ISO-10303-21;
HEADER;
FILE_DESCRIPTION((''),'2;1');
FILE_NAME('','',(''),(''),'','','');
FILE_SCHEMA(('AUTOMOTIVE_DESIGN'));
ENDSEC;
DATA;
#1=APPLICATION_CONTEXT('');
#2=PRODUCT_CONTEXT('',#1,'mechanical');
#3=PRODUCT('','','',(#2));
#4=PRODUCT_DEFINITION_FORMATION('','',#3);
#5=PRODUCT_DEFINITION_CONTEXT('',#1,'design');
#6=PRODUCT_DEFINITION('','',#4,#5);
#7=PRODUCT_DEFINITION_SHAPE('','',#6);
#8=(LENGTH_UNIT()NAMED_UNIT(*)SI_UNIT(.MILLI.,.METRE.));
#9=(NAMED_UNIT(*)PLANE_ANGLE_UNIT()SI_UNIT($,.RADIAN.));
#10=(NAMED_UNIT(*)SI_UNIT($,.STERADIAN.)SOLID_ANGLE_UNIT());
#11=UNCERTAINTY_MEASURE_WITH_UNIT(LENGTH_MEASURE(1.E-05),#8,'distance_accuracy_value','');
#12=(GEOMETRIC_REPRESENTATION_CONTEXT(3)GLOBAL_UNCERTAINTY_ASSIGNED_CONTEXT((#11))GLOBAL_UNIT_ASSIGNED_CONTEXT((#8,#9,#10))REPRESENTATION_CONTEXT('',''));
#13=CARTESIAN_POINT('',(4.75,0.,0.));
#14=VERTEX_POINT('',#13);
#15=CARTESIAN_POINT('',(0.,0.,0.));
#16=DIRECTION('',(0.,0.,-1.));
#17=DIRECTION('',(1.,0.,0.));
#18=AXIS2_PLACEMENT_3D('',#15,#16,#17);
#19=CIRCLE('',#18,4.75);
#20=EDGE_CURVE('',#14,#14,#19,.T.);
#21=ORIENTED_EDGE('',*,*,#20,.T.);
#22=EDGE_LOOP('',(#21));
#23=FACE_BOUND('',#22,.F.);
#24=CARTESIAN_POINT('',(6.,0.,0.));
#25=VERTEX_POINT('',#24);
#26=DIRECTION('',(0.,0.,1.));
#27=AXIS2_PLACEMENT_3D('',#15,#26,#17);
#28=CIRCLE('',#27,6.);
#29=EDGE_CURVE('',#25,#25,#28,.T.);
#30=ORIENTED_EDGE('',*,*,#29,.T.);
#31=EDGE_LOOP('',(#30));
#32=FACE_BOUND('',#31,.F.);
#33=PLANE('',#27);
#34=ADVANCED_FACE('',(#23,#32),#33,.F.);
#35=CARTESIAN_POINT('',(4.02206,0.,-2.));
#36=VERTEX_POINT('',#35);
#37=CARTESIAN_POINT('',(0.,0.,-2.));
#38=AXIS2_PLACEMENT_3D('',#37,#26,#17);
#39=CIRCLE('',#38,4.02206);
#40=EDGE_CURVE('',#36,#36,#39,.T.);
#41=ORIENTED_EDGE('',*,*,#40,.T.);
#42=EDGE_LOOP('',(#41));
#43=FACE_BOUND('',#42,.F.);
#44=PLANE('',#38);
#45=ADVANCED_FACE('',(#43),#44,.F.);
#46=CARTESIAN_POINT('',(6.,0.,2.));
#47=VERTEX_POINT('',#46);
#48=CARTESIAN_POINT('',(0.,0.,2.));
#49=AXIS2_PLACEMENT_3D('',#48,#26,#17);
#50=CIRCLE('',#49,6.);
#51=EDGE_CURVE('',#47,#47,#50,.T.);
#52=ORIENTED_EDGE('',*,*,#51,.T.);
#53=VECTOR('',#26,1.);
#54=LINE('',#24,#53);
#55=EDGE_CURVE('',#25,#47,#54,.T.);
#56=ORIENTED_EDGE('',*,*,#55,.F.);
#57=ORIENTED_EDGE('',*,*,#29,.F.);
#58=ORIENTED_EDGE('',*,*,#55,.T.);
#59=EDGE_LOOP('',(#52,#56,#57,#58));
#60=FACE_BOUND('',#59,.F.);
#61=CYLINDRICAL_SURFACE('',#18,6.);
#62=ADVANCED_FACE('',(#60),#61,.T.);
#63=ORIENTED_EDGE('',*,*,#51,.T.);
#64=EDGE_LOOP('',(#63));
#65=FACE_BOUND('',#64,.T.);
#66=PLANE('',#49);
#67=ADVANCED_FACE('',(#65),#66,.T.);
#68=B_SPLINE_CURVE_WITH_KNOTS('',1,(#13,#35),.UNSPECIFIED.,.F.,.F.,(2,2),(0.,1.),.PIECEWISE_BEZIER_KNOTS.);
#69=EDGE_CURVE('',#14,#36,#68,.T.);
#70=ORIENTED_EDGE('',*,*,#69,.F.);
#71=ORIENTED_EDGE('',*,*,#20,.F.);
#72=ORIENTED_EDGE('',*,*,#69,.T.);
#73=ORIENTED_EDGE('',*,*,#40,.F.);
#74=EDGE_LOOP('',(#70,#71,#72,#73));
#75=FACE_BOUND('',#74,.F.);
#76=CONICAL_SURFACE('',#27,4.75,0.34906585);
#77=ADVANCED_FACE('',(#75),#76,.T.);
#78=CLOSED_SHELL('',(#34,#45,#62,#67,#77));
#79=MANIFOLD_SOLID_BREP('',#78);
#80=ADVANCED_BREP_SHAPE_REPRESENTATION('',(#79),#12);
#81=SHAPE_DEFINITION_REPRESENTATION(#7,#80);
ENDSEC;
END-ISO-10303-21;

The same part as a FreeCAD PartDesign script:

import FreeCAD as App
import Part
import Sketcher

V = App.Vector
Q = App.Units.Quantity

doc = App.newDocument("Part")
body = doc.addObject("PartDesign::Body", "Body")

sketch1 = body.newObject("Sketcher::SketchObject", "Sketch")
sketch1.AttachmentSupport = (doc.getObject("XY_Plane"), [""])
sketch1.MapMode = "FlatFace"
sketch1.addGeometry(Part.Circle(V(0, 0, 0), V(0, 0, 1), 6), False)
sketch1.addConstraint(Sketcher.Constraint("Coincident", 0, 3, -1, 1))
sketch1.addConstraint(Sketcher.Constraint("Diameter", 0, Q("12 mm")))
pad1 = body.newObject("PartDesign::Pad", "Pad")
pad1.Profile = sketch1
pad1.Length = 2

sketch2 = body.newObject("Sketcher::SketchObject", "Sketch001")
sketch2.AttachmentSupport = (doc.getObject("XY_Plane"), [""])
sketch2.MapMode = "FlatFace"
sketch2.addGeometry(Part.Circle(V(0, 0, 0), V(0, 0, 1), 4.8), False)
sketch2.addConstraint(Sketcher.Constraint("Coincident", 0, 3, -1, 1))
sketch2.addConstraint(Sketcher.Constraint("Diameter", 0, Q("9.5 mm")))
pad2 = body.newObject("PartDesign::Pad", "Pad001")
pad2.Profile = sketch2
pad2.Length = 2
pad2.Reversed = True
pad2.TaperAngle = -20

doc.recompute()
